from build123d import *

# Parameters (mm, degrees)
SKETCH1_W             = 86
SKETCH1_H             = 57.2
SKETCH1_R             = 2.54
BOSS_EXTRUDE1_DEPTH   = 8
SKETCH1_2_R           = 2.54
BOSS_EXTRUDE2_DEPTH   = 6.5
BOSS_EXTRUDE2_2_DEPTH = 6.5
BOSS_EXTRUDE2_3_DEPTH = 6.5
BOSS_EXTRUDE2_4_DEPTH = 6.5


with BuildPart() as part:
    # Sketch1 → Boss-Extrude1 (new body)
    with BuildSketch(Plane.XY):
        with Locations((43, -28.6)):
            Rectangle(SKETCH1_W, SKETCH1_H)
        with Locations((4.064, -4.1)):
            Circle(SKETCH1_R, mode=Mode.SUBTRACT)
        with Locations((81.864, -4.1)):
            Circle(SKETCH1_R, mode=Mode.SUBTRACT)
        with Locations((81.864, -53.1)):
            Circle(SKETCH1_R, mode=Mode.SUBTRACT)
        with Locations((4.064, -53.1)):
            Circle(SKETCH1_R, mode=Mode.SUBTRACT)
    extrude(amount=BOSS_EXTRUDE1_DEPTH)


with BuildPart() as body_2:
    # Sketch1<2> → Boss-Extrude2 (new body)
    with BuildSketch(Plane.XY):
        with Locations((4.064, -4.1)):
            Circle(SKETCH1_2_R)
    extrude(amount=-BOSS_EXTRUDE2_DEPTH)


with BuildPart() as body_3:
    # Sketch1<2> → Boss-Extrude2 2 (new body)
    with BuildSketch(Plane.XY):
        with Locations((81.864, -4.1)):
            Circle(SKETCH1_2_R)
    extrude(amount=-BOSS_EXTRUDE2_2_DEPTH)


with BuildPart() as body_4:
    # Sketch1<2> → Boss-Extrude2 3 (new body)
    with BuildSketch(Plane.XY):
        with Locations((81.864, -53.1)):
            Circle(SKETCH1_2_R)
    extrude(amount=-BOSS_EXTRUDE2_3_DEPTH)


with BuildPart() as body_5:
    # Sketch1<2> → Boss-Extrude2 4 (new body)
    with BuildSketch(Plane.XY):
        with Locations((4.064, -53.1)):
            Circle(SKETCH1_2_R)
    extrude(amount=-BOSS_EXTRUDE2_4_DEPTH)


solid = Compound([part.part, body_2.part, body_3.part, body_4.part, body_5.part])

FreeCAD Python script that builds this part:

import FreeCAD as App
import Part
import Sketcher
from FreeCAD import Vector


def add_polygon(sketch, points):
    """Adds a closed chain of lines whose ends are joined by coincident constraints."""
    first, n = sketch.GeometryCount, len(points)
    for a, b in zip(points, points[1:] + points[:1]):
        sketch.addGeometry(Part.LineSegment(App.Vector(*a, 0), App.Vector(*b, 0)), False)
    for i in range(n):
        sketch.addConstraint(Sketcher.Constraint("Coincident", first + i, 2, first + (i + 1) % n, 1))

doc = App.newDocument("Part")
body = doc.addObject("PartDesign::Body", "Body")

sketch1 = body.newObject("Sketcher::SketchObject", "Sketch")
sketch1.AttachmentSupport = (doc.getObject("XY_Plane"), [""])
sketch1.MapMode = "FlatFace"
add_polygon(sketch1, [(0, 0), (0, -57.2), (86, -57.2), (86, 0)])
sketch1.addGeometry(Part.Circle(Vector(4.1, -53.1, 0), Vector(0, 0, 1), 2.5), False)
sketch1.addGeometry(Part.Circle(Vector(81.9, -53.1, 0), Vector(0, 0, 1), 2.5), False)
sketch1.addGeometry(Part.Circle(Vector(4.1, -4.1, 0), Vector(0, 0, 1), 2.5), False)
sketch1.addGeometry(Part.Circle(Vector(81.9, -4.1, 0), Vector(0, 0, 1), 2.5), False)
sketch1.addConstraint([
    Sketcher.Constraint("Vertical", 0),
    Sketcher.Constraint("Horizontal", 1),
    Sketcher.Constraint("Vertical", 2),
    Sketcher.Constraint("Horizontal", 3),
    Sketcher.Constraint("Coincident", 3, 2, -1, 1),
    Sketcher.Constraint("Equal", 4, 5),
    Sketcher.Constraint("Equal", 5, 6),
    Sketcher.Constraint("Equal", 6, 7),
    Sketcher.Constraint("Horizontal", 4, 3, 5, 3),
    Sketcher.Constraint("Horizontal", 6, 3, 7, 3),
    Sketcher.Constraint("Vertical", 4, 3, 6, 3),
    Sketcher.Constraint("Vertical", 5, 3, 7, 3),
    Sketcher.Constraint("Diameter", 4, 5.08),
    Sketcher.Constraint("DistanceX", 1, 1, 1, 2, 86.0),
    Sketcher.Constraint("DistanceY", 0, 2, 0, 1, 57.2),
    Sketcher.Constraint("DistanceY", 4, 3, 6, 3, 49.0),
    Sketcher.Constraint("DistanceY", 4, 3, -1, 1, 53.1),
    Sketcher.Constraint("DistanceX", 4, 3, 5, 3, 77.8),
    Sketcher.Constraint("DistanceX", -1, 1, 4, 3, 4.064),
])
pad1 = body.newObject("PartDesign::Pad", "Pad")
pad1.Profile = sketch1
pad1.Length = 8
body2 = doc.addObject("PartDesign::Body", "Body001")

sketch2 = body2.newObject("Sketcher::SketchObject", "Sketch001")
sketch2.AttachmentSupport = (doc.getObject("XY_Plane001"), [""])
sketch2.MapMode = "FlatFace"
sketch2.addGeometry(Part.Circle(Vector(4.1, -4.1, 0), Vector(0, 0, 1), 2.5), False)
sketch2.addConstraint([
    Sketcher.Constraint("Diameter", 0, 5.08),
    Sketcher.Constraint("DistanceY", 0, 3, -1, 1, 4.1),
    Sketcher.Constraint("DistanceX", -1, 1, 0, 3, 4.064),
])
pad2 = body2.newObject("PartDesign::Pad", "Pad001")
pad2.Profile = sketch2
pad2.Length = 6.5
pad2.Reversed = True
body3 = doc.addObject("PartDesign::Body", "Body002")

sketch3 = body3.newObject("Sketcher::SketchObject", "Sketch002")
sketch3.AttachmentSupport = (doc.getObject("XY_Plane002"), [""])
sketch3.MapMode = "FlatFace"
sketch3.addGeometry(Part.Circle(Vector(81.9, -4.1, 0), Vector(0, 0, 1), 2.5), False)
sketch3.addConstraint([
    Sketcher.Constraint("Diameter", 0, 5.08),
    Sketcher.Constraint("DistanceY", 0, 3, -1, 1, 4.1),
    Sketcher.Constraint("DistanceX", -1, 1, 0, 3, 81.864),
])
pad3 = body3.newObject("PartDesign::Pad", "Pad002")
pad3.Profile = sketch3
pad3.Length = 6.5
pad3.Reversed = True
body4 = doc.addObject("PartDesign::Body", "Body003")

sketch4 = body4.newObject("Sketcher::SketchObject", "Sketch003")
sketch4.AttachmentSupport = (doc.getObject("XY_Plane003"), [""])
sketch4.MapMode = "FlatFace"
sketch4.addGeometry(Part.Circle(Vector(81.9, -53.1, 0), Vector(0, 0, 1), 2.5), False)
sketch4.addConstraint([
    Sketcher.Constraint("Diameter", 0, 5.08),
    Sketcher.Constraint("DistanceY", 0, 3, -1, 1, 53.1),
    Sketcher.Constraint("DistanceX", -1, 1, 0, 3, 81.864),
])
pad4 = body4.newObject("PartDesign::Pad", "Pad003")
pad4.Profile = sketch4
pad4.Length = 6.5
pad4.Reversed = True
body5 = doc.addObject("PartDesign::Body", "Body004")

sketch5 = body5.newObject("Sketcher::SketchObject", "Sketch004")
sketch5.AttachmentSupport = (doc.getObject("XY_Plane004"), [""])
sketch5.MapMode = "FlatFace"
sketch5.addGeometry(Part.Circle(Vector(4.1, -53.1, 0), Vector(0, 0, 1), 2.5), False)
sketch5.addConstraint([
    Sketcher.Constraint("Diameter", 0, 5.08),
    Sketcher.Constraint("DistanceY", 0, 3, -1, 1, 53.1),
    Sketcher.Constraint("DistanceX", -1, 1, 0, 3, 4.064),
])
pad5 = body5.newObject("PartDesign::Pad", "Pad004")
pad5.Profile = sketch5
pad5.Length = 6.5
pad5.Reversed = True

doc.recompute()
